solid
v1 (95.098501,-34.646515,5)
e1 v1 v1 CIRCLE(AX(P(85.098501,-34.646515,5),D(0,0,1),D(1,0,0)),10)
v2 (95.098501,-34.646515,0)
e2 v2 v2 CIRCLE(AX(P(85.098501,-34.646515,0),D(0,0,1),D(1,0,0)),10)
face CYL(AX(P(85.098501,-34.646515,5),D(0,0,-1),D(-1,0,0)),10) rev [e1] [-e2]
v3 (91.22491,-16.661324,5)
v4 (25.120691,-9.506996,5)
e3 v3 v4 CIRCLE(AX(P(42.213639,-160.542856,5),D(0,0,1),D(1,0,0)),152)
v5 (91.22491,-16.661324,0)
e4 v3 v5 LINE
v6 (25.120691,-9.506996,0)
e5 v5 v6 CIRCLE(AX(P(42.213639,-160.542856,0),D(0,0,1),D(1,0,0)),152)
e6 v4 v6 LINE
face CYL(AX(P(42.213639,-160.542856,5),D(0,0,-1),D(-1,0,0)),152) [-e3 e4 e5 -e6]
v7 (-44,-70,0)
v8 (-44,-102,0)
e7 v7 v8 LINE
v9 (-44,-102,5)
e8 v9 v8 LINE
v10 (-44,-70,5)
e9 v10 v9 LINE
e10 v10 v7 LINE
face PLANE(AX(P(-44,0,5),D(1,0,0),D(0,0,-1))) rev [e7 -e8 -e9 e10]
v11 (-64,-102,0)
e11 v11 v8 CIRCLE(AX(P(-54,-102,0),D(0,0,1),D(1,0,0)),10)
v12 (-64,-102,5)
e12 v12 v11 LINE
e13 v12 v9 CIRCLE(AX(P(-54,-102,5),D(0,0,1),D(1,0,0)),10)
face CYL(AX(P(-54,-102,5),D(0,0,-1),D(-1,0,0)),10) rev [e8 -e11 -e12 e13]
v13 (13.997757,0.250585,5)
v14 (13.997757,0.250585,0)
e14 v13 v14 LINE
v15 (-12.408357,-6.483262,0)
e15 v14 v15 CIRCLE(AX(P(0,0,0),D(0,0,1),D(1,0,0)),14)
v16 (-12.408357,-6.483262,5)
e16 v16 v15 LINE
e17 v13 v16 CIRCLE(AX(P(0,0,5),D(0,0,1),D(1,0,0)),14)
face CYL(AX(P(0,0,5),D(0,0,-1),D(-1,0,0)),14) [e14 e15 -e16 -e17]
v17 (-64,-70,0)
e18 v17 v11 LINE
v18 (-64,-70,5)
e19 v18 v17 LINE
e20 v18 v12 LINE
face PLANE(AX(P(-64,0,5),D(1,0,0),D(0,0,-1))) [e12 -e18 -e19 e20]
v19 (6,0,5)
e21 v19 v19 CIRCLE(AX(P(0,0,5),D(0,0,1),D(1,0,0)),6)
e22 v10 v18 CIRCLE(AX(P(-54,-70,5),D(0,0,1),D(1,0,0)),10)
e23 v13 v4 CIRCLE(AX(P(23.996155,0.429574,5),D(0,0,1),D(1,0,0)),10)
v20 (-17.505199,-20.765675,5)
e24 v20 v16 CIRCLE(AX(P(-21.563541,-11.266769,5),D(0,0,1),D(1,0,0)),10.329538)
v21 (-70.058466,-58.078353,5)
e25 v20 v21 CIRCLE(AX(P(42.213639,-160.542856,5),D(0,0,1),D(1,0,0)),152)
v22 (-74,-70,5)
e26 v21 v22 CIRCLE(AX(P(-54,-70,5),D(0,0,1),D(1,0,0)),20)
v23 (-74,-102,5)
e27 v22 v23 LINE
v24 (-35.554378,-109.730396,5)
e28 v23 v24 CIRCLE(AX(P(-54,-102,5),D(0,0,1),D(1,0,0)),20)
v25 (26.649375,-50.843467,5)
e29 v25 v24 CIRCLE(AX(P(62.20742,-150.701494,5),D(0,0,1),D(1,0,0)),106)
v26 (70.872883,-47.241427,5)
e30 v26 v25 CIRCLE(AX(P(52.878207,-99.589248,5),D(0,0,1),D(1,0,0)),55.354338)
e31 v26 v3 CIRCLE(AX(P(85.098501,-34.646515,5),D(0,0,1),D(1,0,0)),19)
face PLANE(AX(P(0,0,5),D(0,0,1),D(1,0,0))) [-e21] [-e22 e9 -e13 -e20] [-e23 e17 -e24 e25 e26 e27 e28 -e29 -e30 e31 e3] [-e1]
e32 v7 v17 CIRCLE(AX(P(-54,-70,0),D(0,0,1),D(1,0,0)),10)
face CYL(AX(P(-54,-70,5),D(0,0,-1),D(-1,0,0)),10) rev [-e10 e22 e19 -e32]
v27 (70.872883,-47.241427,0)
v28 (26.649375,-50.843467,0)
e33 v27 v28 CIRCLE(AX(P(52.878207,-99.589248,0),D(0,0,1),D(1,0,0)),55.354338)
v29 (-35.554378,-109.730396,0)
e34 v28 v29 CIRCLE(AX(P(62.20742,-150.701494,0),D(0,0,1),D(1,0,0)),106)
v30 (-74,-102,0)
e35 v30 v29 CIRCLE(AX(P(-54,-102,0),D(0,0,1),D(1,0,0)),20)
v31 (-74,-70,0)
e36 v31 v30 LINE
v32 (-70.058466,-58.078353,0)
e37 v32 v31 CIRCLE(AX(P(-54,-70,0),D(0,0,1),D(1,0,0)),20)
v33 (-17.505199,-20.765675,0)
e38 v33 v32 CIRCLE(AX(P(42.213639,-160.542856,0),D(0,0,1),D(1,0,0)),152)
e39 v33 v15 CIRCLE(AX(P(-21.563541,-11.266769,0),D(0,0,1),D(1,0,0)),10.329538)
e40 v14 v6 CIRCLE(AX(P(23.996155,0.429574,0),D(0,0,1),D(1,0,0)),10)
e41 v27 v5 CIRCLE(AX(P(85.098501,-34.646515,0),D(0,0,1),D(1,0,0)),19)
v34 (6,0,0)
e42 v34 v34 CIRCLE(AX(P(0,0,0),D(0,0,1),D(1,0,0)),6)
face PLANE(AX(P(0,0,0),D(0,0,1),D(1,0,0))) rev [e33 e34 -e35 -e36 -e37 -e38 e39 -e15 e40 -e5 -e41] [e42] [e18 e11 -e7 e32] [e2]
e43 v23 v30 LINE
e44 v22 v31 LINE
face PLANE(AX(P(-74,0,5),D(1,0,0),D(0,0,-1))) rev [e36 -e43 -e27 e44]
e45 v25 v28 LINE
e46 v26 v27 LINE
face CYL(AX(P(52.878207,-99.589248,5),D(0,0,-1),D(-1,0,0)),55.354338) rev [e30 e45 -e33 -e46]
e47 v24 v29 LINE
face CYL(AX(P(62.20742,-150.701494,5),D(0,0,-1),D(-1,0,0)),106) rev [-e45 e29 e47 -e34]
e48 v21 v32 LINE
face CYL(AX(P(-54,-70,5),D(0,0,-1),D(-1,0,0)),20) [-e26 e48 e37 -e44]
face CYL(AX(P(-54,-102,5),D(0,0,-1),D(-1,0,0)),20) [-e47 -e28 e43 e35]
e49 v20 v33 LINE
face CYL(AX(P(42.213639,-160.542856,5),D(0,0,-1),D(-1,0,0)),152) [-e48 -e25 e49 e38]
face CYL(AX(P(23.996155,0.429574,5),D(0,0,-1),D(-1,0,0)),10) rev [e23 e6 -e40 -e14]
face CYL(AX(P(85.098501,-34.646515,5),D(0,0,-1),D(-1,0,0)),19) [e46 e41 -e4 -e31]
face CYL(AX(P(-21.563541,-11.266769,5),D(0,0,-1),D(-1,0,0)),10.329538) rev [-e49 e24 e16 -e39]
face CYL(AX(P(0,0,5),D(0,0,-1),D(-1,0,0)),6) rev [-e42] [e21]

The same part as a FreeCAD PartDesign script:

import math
import FreeCAD as App
import Part
import Sketcher

V = App.Vector
Q = App.Units.Quantity

doc = App.newDocument("Part")
body = doc.addObject("PartDesign::Body", "Body")

sketch1 = doc.addObject("Sketcher::SketchObject", "Sketch")
body.addObject(sketch1)
sketch1.AttachmentSupport = (doc.XY_Plane, [""])
sketch1.MapMode = "FlatFace"
sketch1.addGeometry(Part.ArcOfCircle(Part.Circle(V(-54, -70, 0), V(0, 0, 1), 20), math.radians(143.41017), math.radians(180)), False)
sketch1.addGeometry(Part.LineSegment(V(-74, -70, 0), V(-74, -102, 0)), False)
sketch1.addGeometry(Part.ArcOfCircle(Part.Circle(V(-54, -102, 0), V(0, 0, 1), 20), math.radians(180), math.radians(337.261877)), False)
sketch1.addGeometry(Part.ArcOfCircle(Part.Circle(V(62.20742, -150.701494, 0), V(0, 0, 1), 106), math.radians(109.600102), math.radians(157.261877)), False)
sketch1.addGeometry(Part.ArcOfCircle(Part.Circle(V(52.878207, -99.589248, 0), V(0, 0, 1), 55.354338), math.radians(71.029482), math.radians(118.283535)), False)
sketch1.addGeometry(Part.ArcOfCircle(Part.Circle(V(85.098501, -34.646515, 0), V(0, 0, 1), 19), math.radians(-138.479339), math.radians(71.189294)), False)
sketch1.addGeometry(Part.ArcOfCircle(Part.Circle(V(42.213639, -160.542856, 0), V(0, 0, 1), 152), math.radians(71.189294), math.radians(96.456774)), False)
sketch1.addGeometry(Part.ArcOfCircle(Part.Circle(V(23.996155, 0.429574, 0), V(0, 0, 1), 10), math.radians(-178.974413), math.radians(-83.543226)), False)
sketch1.addGeometry(Part.ArcOfCircle(Part.Circle(V(0, 0, 0), V(0, 0, 1), 14), math.radians(1.025587), math.radians(207.58669)), False)
sketch1.addGeometry(Part.ArcOfCircle(Part.Circle(V(-21.563541, -11.266769, 0), V(0, 0, 1), 10.329538), math.radians(-66.865737), math.radians(27.58669)), False)
sketch1.addGeometry(Part.ArcOfCircle(Part.Circle(V(42.213639, -160.542856, 0), V(0, 0, 1), 152), math.radians(113.134263), math.radians(137.615036)), False)
sketch1.addGeometry(Part.LineSegment(V(-44, -70, 0), V(-44, -102, 0)), False)
sketch1.addGeometry(Part.ArcOfCircle(Part.Circle(V(-54, -102, 0), V(0, 0, 1), 10), math.radians(180), math.radians(360)), False)
sketch1.addGeometry(Part.LineSegment(V(-64, -102, 0), V(-64, -70, 0)), False)
sketch1.addGeometry(Part.ArcOfCircle(Part.Circle(V(-54, -70, 0), V(0, 0, 1), 10), math.radians(0), math.radians(180)), False)
sketch1.addGeometry(Part.Circle(V(0, 0, 0), V(0, 0, 1), 6), False)
sketch1.addGeometry(Part.Circle(V(85.098501, -34.646515, 0), V(0, 0, 1), 10), False)
sketch1.addConstraint(Sketcher.Constraint("Coincident", 0, 2, 1, 1))
sketch1.addConstraint(Sketcher.Constraint("Coincident", 1, 2, 2, 1))
sketch1.addConstraint(Sketcher.Constraint("Coincident", 2, 2, 3, 2))
sketch1.addConstraint(Sketcher.Constraint("Coincident", 3, 1, 4, 2))
sketch1.addConstraint(Sketcher.Constraint("Coincident", 4, 1, 5, 1))
sketch1.addConstraint(Sketcher.Constraint("Coincident", 5, 2, 6, 1))
sketch1.addConstraint(Sketcher.Constraint("Coincident", 6, 2, 7, 2))
sketch1.addConstraint(Sketcher.Constraint("Coincident", 7, 1, 8, 1))
sketch1.addConstraint(Sketcher.Constraint("Coincident", 8, 2, 9, 2))
sketch1.addConstraint(Sketcher.Constraint("Coincident", 9, 1, 10, 1))
sketch1.addConstraint(Sketcher.Constraint("Coincident", 10, 2, 0, 1))
sketch1.addConstraint(Sketcher.Constraint("Coincident", 11, 2, 12, 2))
sketch1.addConstraint(Sketcher.Constraint("Coincident", 12, 1, 13, 1))
sketch1.addConstraint(Sketcher.Constraint("Coincident", 13, 2, 14, 2))
sketch1.addConstraint(Sketcher.Constraint("Coincident", 14, 1, 11, 1))
sketch1.addConstraint(Sketcher.Constraint("Vertical", 1))
sketch1.addConstraint(Sketcher.Constraint("Vertical", 11))
sketch1.addConstraint(Sketcher.Constraint("Vertical", 13))
sketch1.addConstraint(Sketcher.Constraint("Coincident", 8, 3, -1, 1))
sketch1.addConstraint(Sketcher.Constraint("Coincident", 15, 3, -1, 1))
sketch1.addConstraint(Sketcher.Constraint("Coincident", 10, 3, 6, 3))
sketch1.addConstraint(Sketcher.Constraint("Coincident", 12, 3, 2, 3))
sketch1.addConstraint(Sketcher.Constraint("Coincident", 14, 3, 0, 3))
sketch1.addConstraint(Sketcher.Constraint("Coincident", 16, 3, 5, 3))
sketch1.addConstraint(Sketcher.Constraint("Diameter", 15, Q("12 mm")))
sketch1.addConstraint(Sketcher.Constraint("Diameter", 16, Q("20 mm")))
sketch1.addConstraint(Sketcher.Constraint("Radius", 0, Q("20 mm")))
sketch1.addConstraint(Sketcher.Constraint("Radius", 3, Q("106 mm")))
sketch1.addConstraint(Sketcher.Constraint("Radius", 5, Q("19 mm")))
sketch1.addConstraint(Sketcher.Constraint("Radius", 6, Q("152 mm")))
sketch1.addConstraint(Sketcher.Constraint("Radius", 7, Q("10 mm")))
sketch1.addConstraint(Sketcher.Constraint("Radius", 8, Q("14 mm")))
sketch1.addConstraint(Sketcher.Constraint("Radius", 10, Q("152 mm")))
sketch1.addConstraint(Sketcher.Constraint("Radius", 12, Q("10 mm")))
sketch1.addConstraint(Sketcher.Constraint("DistanceY", 1, 2, 1, 1, Q("32 mm")))
sketch1.addConstraint(Sketcher.Constraint("DistanceY", 11, 2, 11, 1, Q("32 mm")))
sketch1.addConstraint(Sketcher.Constraint("DistanceY", 13, 1, 13, 2, Q("32 mm")))
sketch1.addConstraint(Sketcher.Constraint("DistanceX", 0, 3, -1, 1, Q("54 mm")))
sketch1.addConstraint(Sketcher.Constraint("DistanceY", 0, 3, -1, 1, Q("70 mm")))
sketch1.addConstraint(Sketcher.Constraint("DistanceY", 2, 3, -1, 1, Q("102 mm")))
sketch1.addConstraint(Sketcher.Constraint("DistanceY", 0, 2, -1, 1, Q("70 mm")))
sketch1.addConstraint(Sketcher.Constraint("DistanceY", 11, 2, -1, 1, Q("102 mm")))
sketch1.addConstraint(Sketcher.Constraint("DistanceY", 12, 1, -1, 1, Q("102 mm")))
sketch1.addConstraint(Sketcher.Constraint("Radius", 4, Q("55.354338 mm")))
sketch1.addConstraint(Sketcher.Constraint("Radius", 9, Q("10.329538 mm")))
sketch1.addConstraint(Sketcher.Constraint("DistanceY", 4, 1, 7, 3, Q("47.671001 mm")))
sketch1.addConstraint(Sketcher.Constraint("DistanceX", -1, 1, 5, 3, Q("85.098501 mm")))
sketch1.addConstraint(Sketcher.Constraint("DistanceX", 9, 1, -1, 1, Q("17.505199 mm")))
sketch1.addConstraint(Sketcher.Constraint("DistanceX", 7, 1, 7, 3, Q("9.998398 mm")))
sketch1.addConstraint(Sketcher.Constraint("DistanceX", 9, 3, 7, 1, Q("35.561299 mm")))
sketch1.addConstraint(Sketcher.Constraint("DistanceX", -1, 1, 3, 3, Q("62.20742 mm")))
sketch1.addConstraint(Sketcher.Constraint("DistanceX", -1, 1, 6, 3, Q("42.213639 mm")))
sketch1.addConstraint(Sketcher.Constraint("DistanceX", -1, 1, 5, 2, Q("91.22491 mm")))
sketch1.addConstraint(Sketcher.Constraint("DistanceX", -1, 1, 6, 2, Q("25.120691 mm")))
sketch1.addConstraint(Sketcher.Constraint("DistanceY", 6, 3, 4, 3, Q("60.953609 mm")))
sketch1.addConstraint(Sketcher.Constraint("DistanceX", 8, 2, 7, 3, Q("36.404512 mm")))
sketch1.addConstraint(Sketcher.Constraint("DistanceX", 2, 2, -1, 1, Q("35.554378 mm")))
pad1 = doc.addObject("PartDesign::Pad", "Pad")
body.addObject(pad1)
pad1.Profile = sketch1
pad1.Length = 5

doc.recompute()
